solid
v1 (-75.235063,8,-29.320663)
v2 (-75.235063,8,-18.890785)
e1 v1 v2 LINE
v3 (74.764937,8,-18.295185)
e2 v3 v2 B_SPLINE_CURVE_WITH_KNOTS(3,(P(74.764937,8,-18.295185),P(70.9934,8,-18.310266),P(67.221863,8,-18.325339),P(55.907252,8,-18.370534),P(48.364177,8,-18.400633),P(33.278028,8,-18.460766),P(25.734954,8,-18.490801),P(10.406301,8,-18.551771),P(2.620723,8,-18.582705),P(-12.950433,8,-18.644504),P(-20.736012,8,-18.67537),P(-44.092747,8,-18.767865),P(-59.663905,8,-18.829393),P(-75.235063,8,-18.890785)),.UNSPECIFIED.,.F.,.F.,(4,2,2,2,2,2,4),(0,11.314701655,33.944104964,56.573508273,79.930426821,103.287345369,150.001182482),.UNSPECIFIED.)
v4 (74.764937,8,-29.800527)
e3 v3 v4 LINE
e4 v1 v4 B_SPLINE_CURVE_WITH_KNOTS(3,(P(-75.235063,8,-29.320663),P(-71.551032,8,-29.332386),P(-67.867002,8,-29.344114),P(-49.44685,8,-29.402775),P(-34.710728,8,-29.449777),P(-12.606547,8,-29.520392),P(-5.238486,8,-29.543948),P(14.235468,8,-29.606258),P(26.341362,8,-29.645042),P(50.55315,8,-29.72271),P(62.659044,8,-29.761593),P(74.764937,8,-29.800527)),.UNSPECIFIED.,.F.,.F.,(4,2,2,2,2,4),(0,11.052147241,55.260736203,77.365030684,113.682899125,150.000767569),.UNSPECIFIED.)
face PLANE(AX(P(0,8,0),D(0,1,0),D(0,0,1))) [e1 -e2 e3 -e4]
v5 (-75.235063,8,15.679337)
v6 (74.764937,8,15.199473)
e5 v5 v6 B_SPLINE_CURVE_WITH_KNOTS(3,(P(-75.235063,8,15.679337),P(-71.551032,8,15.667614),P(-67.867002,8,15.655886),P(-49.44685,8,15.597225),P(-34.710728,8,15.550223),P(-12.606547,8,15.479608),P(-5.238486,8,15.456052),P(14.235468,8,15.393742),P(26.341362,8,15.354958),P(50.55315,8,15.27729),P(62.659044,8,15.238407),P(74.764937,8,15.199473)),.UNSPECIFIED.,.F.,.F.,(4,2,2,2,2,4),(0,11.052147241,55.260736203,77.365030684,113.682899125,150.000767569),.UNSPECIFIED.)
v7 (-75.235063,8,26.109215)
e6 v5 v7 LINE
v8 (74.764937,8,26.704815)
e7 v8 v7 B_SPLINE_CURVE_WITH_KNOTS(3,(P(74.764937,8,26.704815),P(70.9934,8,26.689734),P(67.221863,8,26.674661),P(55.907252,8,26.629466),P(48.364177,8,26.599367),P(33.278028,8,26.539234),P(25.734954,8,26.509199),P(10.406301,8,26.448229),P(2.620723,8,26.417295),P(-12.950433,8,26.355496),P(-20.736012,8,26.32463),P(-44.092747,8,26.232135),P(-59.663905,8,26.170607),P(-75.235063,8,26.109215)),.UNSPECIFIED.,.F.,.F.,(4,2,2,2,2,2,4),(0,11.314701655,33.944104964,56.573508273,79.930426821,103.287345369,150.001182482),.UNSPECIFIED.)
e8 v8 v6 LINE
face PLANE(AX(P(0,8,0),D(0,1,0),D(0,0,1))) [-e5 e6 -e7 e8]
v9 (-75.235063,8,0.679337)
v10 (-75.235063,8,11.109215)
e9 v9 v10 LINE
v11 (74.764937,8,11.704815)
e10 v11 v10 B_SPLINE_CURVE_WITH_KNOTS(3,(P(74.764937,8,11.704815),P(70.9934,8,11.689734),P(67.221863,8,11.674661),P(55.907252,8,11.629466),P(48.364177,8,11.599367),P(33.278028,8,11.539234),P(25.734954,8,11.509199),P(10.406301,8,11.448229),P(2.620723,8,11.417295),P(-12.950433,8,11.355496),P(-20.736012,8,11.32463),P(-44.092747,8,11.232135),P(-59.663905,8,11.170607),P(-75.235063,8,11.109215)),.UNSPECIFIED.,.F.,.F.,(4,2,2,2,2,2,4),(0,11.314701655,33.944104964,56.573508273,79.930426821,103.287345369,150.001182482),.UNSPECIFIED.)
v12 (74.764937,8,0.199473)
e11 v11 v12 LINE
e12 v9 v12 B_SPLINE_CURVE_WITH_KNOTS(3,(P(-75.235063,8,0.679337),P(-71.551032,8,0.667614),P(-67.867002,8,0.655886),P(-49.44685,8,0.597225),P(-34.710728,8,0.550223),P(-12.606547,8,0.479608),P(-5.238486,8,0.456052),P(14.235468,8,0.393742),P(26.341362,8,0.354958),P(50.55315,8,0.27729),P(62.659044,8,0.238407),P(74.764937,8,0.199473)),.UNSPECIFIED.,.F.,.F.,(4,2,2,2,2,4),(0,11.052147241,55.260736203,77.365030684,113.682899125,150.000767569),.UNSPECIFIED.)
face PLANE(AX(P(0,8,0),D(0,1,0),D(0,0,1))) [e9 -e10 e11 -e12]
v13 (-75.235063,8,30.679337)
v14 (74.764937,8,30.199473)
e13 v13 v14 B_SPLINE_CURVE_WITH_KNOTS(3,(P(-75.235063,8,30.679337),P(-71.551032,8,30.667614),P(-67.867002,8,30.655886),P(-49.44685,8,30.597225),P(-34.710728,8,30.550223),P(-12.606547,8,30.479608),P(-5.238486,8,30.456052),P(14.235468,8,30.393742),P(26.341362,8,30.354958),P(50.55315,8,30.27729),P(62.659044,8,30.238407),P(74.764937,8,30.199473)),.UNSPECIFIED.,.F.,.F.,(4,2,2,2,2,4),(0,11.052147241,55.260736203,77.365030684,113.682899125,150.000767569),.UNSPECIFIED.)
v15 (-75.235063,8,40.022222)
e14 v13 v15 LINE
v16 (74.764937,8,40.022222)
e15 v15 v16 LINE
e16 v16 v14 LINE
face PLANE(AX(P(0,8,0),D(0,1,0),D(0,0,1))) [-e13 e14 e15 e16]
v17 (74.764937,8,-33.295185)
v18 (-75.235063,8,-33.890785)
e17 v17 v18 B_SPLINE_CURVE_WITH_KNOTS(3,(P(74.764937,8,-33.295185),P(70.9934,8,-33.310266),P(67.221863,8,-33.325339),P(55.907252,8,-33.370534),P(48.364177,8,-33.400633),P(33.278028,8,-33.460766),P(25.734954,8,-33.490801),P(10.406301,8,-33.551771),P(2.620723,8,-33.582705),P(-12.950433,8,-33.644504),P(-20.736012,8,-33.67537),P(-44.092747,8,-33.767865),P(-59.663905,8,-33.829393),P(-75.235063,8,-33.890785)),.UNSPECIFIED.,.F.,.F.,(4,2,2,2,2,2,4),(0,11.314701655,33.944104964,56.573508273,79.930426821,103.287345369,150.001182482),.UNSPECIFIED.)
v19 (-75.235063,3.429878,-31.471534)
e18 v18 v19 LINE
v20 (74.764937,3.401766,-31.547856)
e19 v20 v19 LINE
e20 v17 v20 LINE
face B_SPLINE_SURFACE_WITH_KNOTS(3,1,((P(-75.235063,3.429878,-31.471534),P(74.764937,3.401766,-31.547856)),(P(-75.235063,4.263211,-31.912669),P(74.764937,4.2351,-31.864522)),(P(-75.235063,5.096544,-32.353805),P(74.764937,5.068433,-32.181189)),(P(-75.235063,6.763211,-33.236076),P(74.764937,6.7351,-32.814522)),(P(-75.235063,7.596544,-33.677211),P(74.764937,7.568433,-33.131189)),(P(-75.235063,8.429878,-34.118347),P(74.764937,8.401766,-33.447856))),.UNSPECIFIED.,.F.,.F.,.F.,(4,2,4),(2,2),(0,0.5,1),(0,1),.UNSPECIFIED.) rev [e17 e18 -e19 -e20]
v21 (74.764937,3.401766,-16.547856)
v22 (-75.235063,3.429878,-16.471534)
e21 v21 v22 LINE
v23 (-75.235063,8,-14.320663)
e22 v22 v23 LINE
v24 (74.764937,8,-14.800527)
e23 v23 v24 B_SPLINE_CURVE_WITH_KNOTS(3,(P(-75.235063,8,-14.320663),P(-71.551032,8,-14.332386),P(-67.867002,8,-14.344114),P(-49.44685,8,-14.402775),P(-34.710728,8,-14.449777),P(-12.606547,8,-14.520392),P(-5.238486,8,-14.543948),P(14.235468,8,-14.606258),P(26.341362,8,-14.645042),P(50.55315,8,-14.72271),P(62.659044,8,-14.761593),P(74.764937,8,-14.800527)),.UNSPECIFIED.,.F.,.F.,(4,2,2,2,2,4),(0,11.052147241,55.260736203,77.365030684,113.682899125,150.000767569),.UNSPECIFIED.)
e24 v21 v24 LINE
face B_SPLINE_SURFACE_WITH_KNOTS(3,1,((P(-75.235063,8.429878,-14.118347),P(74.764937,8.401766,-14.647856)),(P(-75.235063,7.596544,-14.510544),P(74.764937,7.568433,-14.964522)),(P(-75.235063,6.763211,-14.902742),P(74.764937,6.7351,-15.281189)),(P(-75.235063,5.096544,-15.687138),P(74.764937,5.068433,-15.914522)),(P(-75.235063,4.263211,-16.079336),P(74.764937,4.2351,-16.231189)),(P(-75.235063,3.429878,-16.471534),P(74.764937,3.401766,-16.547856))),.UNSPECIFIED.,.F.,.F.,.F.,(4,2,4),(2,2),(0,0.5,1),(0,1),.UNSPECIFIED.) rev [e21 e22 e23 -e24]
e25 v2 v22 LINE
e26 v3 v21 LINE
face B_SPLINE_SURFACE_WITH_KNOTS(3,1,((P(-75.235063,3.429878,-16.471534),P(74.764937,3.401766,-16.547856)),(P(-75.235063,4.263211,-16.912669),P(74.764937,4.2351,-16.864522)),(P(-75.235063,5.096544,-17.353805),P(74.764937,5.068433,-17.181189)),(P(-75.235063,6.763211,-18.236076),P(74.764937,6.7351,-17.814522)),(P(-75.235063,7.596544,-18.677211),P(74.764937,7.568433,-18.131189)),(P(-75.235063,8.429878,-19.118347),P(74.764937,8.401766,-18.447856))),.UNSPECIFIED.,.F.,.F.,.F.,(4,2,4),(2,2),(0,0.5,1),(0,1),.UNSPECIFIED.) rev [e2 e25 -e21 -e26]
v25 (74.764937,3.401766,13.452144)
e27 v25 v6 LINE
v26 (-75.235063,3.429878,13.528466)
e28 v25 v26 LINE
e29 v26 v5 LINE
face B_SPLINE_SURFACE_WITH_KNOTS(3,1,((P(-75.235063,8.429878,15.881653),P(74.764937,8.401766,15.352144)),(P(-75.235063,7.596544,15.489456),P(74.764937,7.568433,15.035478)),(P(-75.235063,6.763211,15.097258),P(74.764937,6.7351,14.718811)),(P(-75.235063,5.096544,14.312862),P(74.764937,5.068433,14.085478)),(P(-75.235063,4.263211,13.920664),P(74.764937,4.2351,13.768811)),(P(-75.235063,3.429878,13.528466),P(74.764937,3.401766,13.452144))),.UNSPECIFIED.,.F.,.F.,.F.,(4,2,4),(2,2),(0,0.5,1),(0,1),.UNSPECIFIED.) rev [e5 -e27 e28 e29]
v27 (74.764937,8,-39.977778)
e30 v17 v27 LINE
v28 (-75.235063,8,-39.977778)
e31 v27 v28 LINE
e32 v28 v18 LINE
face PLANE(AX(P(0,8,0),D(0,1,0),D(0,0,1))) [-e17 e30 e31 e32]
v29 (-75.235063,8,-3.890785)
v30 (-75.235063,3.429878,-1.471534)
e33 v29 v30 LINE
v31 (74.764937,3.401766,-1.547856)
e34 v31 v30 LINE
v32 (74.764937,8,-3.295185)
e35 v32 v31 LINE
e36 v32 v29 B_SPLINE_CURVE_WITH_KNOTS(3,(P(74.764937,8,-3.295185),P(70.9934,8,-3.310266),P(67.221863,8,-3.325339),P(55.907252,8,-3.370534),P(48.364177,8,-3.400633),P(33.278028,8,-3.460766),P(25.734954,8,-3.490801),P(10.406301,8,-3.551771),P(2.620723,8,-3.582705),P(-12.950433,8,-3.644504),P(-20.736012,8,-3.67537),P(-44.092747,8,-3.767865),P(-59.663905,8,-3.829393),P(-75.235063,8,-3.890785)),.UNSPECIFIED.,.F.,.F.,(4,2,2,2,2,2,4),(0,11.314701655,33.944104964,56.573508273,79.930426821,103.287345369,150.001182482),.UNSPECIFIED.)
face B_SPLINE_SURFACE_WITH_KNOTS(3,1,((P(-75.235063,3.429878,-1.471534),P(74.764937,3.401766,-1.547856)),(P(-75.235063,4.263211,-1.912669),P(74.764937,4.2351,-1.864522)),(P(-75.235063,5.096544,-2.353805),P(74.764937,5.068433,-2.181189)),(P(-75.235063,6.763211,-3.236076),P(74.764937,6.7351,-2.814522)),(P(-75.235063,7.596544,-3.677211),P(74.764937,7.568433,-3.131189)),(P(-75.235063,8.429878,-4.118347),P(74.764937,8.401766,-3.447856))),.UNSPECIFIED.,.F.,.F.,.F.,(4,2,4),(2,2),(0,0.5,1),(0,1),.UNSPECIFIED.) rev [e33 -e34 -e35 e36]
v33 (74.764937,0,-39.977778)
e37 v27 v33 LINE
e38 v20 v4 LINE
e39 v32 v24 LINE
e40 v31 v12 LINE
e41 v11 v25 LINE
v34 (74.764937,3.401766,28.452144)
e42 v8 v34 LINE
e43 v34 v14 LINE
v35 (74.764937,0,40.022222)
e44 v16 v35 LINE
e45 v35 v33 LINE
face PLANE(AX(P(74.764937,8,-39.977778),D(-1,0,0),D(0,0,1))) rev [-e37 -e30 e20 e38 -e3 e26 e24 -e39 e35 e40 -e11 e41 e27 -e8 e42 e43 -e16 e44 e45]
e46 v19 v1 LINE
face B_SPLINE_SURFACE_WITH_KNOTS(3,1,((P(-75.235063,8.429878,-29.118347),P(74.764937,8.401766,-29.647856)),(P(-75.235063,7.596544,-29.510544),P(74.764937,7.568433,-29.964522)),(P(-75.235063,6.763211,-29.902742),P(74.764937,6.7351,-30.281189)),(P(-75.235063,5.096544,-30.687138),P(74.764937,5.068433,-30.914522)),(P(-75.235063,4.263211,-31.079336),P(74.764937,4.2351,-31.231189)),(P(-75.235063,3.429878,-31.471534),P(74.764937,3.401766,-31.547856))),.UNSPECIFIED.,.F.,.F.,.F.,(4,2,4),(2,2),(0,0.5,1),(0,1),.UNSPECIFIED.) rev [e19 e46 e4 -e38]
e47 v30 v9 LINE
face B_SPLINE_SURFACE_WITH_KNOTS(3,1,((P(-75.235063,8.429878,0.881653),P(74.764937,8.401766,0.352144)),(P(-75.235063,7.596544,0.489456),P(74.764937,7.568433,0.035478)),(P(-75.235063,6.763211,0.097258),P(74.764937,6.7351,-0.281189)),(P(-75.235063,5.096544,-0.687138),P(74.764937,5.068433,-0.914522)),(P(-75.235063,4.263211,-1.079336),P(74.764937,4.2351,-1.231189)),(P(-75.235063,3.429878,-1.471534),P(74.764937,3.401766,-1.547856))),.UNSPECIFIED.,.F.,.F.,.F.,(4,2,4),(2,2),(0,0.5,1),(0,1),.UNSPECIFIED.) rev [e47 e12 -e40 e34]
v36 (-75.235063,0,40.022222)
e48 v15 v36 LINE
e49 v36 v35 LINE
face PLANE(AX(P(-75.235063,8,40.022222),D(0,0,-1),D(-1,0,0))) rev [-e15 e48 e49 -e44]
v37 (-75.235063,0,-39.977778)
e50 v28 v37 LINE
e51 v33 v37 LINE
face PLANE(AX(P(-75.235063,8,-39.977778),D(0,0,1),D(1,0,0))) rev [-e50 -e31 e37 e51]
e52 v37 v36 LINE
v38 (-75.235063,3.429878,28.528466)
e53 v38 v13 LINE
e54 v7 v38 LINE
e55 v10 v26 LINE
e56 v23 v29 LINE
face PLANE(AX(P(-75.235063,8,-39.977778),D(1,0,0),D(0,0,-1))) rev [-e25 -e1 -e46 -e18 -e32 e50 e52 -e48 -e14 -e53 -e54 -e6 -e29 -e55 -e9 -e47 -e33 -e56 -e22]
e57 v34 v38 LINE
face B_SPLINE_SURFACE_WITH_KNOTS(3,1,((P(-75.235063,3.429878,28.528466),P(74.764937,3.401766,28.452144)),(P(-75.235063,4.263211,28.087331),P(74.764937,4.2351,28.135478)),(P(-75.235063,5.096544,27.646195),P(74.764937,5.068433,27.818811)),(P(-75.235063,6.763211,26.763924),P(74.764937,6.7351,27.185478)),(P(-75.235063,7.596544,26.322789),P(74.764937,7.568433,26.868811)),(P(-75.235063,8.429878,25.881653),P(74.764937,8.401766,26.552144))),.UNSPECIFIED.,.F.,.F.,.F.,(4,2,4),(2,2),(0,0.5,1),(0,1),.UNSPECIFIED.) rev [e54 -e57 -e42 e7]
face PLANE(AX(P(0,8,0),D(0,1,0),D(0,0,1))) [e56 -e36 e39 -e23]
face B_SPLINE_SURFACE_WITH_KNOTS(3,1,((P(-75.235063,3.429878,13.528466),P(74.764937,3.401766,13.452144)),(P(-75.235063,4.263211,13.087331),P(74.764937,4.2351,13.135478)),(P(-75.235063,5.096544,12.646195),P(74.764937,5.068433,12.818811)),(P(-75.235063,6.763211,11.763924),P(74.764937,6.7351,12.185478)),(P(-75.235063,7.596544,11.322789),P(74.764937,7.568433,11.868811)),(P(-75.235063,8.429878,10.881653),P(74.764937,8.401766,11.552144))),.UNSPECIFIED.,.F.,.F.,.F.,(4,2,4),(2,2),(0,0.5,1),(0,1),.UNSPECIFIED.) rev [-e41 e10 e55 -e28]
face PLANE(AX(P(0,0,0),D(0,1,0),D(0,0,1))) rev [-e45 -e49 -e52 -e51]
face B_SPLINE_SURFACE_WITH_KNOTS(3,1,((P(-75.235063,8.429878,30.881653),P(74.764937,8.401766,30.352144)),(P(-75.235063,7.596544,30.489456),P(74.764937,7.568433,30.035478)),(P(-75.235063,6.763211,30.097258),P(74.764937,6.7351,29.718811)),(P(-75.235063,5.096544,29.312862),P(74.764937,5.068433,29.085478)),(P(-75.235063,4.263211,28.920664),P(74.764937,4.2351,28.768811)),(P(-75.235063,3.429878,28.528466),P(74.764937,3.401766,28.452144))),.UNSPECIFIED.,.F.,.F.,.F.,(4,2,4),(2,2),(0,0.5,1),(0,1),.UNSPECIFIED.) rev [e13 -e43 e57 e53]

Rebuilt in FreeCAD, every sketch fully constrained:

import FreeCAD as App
import Part
import Sketcher

V = App.Vector


def add_polygon(sketch, points):
    """Adds a closed chain of lines whose ends are joined by coincident constraints."""
    first, n = sketch.GeometryCount, len(points)
    for a, b in zip(points, points[1:] + points[:1]):
        sketch.addGeometry(Part.LineSegment(App.Vector(*a, 0), App.Vector(*b, 0)), False)
    for i in range(n):
        sketch.addConstraint(Sketcher.Constraint("Coincident", first + i, 2, first + (i + 1) % n, 1))

doc = App.newDocument("Part")
body = doc.addObject("PartDesign::Body", "Body")

# Sketch on XZ plane
sketch1 = body.newObject("Sketcher::SketchObject", "Sketch")
sketch1.AttachmentSupport = (doc.getObject("XZ_Plane"), [""])
sketch1.MapMode = "FlatFace"
add_polygon(sketch1, [(-75, -40), (-75, 40), (75, 40), (75, -40)])  # lines 0-3
sketch1.addConstraint(Sketcher.Constraint("Vertical", 0))
sketch1.addConstraint(Sketcher.Constraint("Horizontal", 1))
sketch1.addConstraint(Sketcher.Constraint("Vertical", 2))
sketch1.addConstraint(Sketcher.Constraint("Horizontal", 3))
sketch1.addConstraint(Sketcher.Constraint("DistanceX", 1, 1, 1, 2, 150.0))
sketch1.addConstraint(Sketcher.Constraint("DistanceY", 0, 1, 0, 2, 80.0))
sketch1.addConstraint(Sketcher.Constraint("DistanceY", -1, 1, 0, 2, 40.022222))
sketch1.addConstraint(Sketcher.Constraint("DistanceX", 0, 2, -1, 1, 75.235063))
pad1 = body.newObject("PartDesign::Pad", "Pad")
pad1.Profile = sketch1
pad1.Length = 8
pad1.Reversed = True

# Sketch on YZ plane
sketch2 = body.newObject("Sketcher::SketchObject", "Sketch001")
sketch2.AttachmentSupport = (doc.getObject("YZ_Plane"), [""])
sketch2.MapMode = "FlatFace"
sketch2.AttachmentOffset = App.Placement(V(0, 0, -75.235063), App.Rotation())
add_polygon(sketch2, [(8.4, -29.1), (8.4, -34.1), (3.4, -31.5)])  # lines 0-2
sketch2.addConstraint(Sketcher.Constraint("Vertical", 0))
sketch2.addConstraint(Sketcher.Constraint("DistanceY", 0, 2, 0, 1, 5.0))
sketch2.addConstraint(Sketcher.Constraint("DistanceX", 1, 2, 0, 2, 5.0))
sketch2.addConstraint(Sketcher.Constraint("Distance", 1, 5.657351))
sketch2.addConstraint(Sketcher.Constraint("DistanceX", -1, 1, 0, 2, 8.429878))
sketch2.addConstraint(Sketcher.Constraint("DistanceY", 0, 2, -1, 1, 34.118347))

# Sketch on YZ plane
sketch3 = body.newObject("Sketcher::SketchObject", "Sketch002")
sketch3.AttachmentSupport = (doc.getObject("YZ_Plane"), [""])
sketch3.MapMode = "FlatFace"
sketch3.AttachmentOffset = App.Placement(V(0, 0, 74.764937), App.Rotation())
add_polygon(sketch3, [(8.4, -29.6), (8.4, -33.4), (3.4, -31.5)])  # lines 0-2
sketch3.addConstraint(Sketcher.Constraint("Vertical", 0))
sketch3.addConstraint(Sketcher.Constraint("Equal", 1, 2))
sketch3.addConstraint(Sketcher.Constraint("DistanceY", 0, 2, 0, 1, 3.8))
sketch3.addConstraint(Sketcher.Constraint("DistanceX", 1, 2, 0, 2, 5.0))
sketch3.addConstraint(Sketcher.Constraint("DistanceX", -1, 1, 0, 2, 8.401766))
sketch3.addConstraint(Sketcher.Constraint("DistanceY", 0, 2, -1, 1, 33.447856))

subtractiveloft = body.newObject("PartDesign::SubtractiveLoft", "SubtractiveLoft")
subtractiveloft.Profile = sketch2
subtractiveloft.Sections = [sketch3]
doc.recompute()

linearpattern = body.newObject("PartDesign::LinearPattern", "LinearPattern")
linearpattern.Originals = [subtractiveloft]
linearpattern.Direction = (doc.getObject("Z_Axis"), [""])
linearpattern.Mode = "offset"
linearpattern.Offset = 15
linearpattern.Occurrences = 5
body.Tip = linearpattern

doc.recompute()
